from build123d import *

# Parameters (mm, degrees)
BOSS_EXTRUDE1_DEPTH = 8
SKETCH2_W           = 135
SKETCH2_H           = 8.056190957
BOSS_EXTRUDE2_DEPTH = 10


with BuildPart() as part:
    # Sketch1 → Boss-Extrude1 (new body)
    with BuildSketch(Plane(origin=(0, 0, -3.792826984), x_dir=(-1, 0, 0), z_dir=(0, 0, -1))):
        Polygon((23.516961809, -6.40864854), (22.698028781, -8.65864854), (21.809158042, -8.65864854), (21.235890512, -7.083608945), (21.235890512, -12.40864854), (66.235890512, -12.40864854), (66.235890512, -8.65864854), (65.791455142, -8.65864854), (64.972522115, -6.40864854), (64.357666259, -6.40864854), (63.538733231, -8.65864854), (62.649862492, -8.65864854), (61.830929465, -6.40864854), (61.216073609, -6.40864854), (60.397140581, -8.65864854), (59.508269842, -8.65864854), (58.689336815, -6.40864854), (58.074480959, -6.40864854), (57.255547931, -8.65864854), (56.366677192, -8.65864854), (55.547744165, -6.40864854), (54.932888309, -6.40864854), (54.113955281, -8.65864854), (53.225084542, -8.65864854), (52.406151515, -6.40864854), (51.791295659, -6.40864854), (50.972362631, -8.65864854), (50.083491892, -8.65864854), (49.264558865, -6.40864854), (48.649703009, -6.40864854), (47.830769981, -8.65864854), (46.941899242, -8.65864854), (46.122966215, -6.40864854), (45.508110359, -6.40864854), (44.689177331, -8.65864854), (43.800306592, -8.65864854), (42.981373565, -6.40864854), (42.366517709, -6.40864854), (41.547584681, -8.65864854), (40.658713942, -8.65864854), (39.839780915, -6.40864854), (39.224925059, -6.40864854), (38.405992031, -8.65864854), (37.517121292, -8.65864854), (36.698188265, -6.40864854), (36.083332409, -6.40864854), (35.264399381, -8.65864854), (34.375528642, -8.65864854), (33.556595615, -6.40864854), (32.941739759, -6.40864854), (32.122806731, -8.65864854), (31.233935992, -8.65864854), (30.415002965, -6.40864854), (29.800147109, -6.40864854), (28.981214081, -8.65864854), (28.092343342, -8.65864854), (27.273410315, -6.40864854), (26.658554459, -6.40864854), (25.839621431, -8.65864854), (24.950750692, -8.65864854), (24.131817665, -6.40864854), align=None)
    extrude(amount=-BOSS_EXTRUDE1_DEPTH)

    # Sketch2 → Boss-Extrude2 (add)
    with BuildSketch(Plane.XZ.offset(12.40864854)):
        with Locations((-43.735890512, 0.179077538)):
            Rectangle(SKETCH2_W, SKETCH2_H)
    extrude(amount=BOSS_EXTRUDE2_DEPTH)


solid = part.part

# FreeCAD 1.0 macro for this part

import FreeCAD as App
import Part
import Sketcher

V = App.Vector
Q = App.Units.Quantity


def add_polygon(sketch, points):
    """Adds a closed chain of lines whose ends are joined by coincident constraints."""
    first, n = sketch.GeometryCount, len(points)
    for a, b in zip(points, points[1:] + points[:1]):
        sketch.addGeometry(Part.LineSegment(App.Vector(*a, 0), App.Vector(*b, 0)), False)
    for i in range(n):
        sketch.addConstraint(Sketcher.Constraint("Coincident", first + i, 2, first + (i + 1) % n, 1))

doc = App.newDocument("Part")
body = doc.addObject("PartDesign::Body", "Body")

sketch1 = body.newObject("Sketcher::SketchObject", "Sketch")
sketch1.AttachmentSupport = (doc.getObject("XY_Plane"), [""])
sketch1.MapMode = "FlatFace"
sketch1.AttachmentOffset = App.Placement(V(0, 0, -3.792827), App.Rotation())
add_polygon(sketch1, [(-23.52, -6.41), (-22.7, -8.66), (-21.81, -8.66), (-21.24, -7.08), (-21.24, -12.41), (-66.24, -12.41), (-66.24, -8.66), (-65.79, -8.66), (-64.97, -6.41), (-64.36, -6.41), (-63.54, -8.66), (-62.65, -8.66), (-61.83, -6.41), (-61.22, -6.41), (-60.4, -8.66), (-59.51, -8.66), (-58.69, -6.41), (-58.07, -6.41), (-57.26, -8.66), (-56.37, -8.66), (-55.55, -6.41), (-54.93, -6.41), (-54.11, -8.66), (-53.23, -8.66), (-52.41, -6.41), (-51.79, -6.41), (-50.97, -8.66), (-50.08, -8.66), (-49.26, -6.41), (-48.65, -6.41), (-47.83, -8.66), (-46.94, -8.66), (-46.12, -6.41), (-45.51, -6.41), (-44.69, -8.66), (-43.8, -8.66), (-42.98, -6.41), (-42.37, -6.41), (-41.55, -8.66), (-40.66, -8.66), (-39.84, -6.41), (-39.22, -6.41), (-38.41, -8.66), (-37.52, -8.66), (-36.7, -6.41), (-36.08, -6.41), (-35.26, -8.66), (-34.38, -8.66), (-33.56, -6.41), (-32.94, -6.41), (-32.12, -8.66), (-31.23, -8.66), (-30.42, -6.41), (-29.8, -6.41), (-28.98, -8.66), (-28.09, -8.66), (-27.27, -6.41), (-26.66, -6.41), (-25.84, -8.66), (-24.95, -8.66), (-24.13, -6.41)])
sketch1.addConstraint(Sketcher.Constraint("Horizontal", 1))
sketch1.addConstraint(Sketcher.Constraint("Vertical", 3))
sketch1.addConstraint(Sketcher.Constraint("Horizontal", 4))
sketch1.addConstraint(Sketcher.Constraint("Vertical", 5))
sketch1.addConstraint(Sketcher.Constraint("Horizontal", 6))
sketch1.addConstraint(Sketcher.Constraint("Horizontal", 8))
sketch1.addConstraint(Sketcher.Constraint("Horizontal", 10))
sketch1.addConstraint(Sketcher.Constraint("Horizontal", 12))
sketch1.addConstraint(Sketcher.Constraint("Horizontal", 14))
sketch1.addConstraint(Sketcher.Constraint("Horizontal", 16))
sketch1.addConstraint(Sketcher.Constraint("Horizontal", 18))
sketch1.addConstraint(Sketcher.Constraint("Horizontal", 20))
sketch1.addConstraint(Sketcher.Constraint("Horizontal", 22))
sketch1.addConstraint(Sketcher.Constraint("Horizontal", 24))
sketch1.addConstraint(Sketcher.Constraint("Horizontal", 26))
sketch1.addConstraint(Sketcher.Constraint("Horizontal", 28))
sketch1.addConstraint(Sketcher.Constraint("Horizontal", 30))
sketch1.addConstraint(Sketcher.Constraint("Horizontal", 32))
sketch1.addConstraint(Sketcher.Constraint("Horizontal", 34))
sketch1.addConstraint(Sketcher.Constraint("Horizontal", 36))
sketch1.addConstraint(Sketcher.Constraint("Horizontal", 38))
sketch1.addConstraint(Sketcher.Constraint("Horizontal", 40))
sketch1.addConstraint(Sketcher.Constraint("Horizontal", 42))
sketch1.addConstraint(Sketcher.Constraint("Horizontal", 44))
sketch1.addConstraint(Sketcher.Constraint("Horizontal", 46))
sketch1.addConstraint(Sketcher.Constraint("Horizontal", 48))
sketch1.addConstraint(Sketcher.Constraint("Horizontal", 50))
sketch1.addConstraint(Sketcher.Constraint("Horizontal", 52))
sketch1.addConstraint(Sketcher.Constraint("Horizontal", 54))
sketch1.addConstraint(Sketcher.Constraint("Horizontal", 56))
sketch1.addConstraint(Sketcher.Constraint("Horizontal", 58))
sketch1.addConstraint(Sketcher.Constraint("Horizontal", 60))
sketch1.addConstraint(Sketcher.Constraint("Parallel", 2, 7))
sketch1.addConstraint(Sketcher.Constraint("Parallel", 0, 9))
sketch1.addConstraint(Sketcher.Constraint("Parallel", 7, 11))
sketch1.addConstraint(Sketcher.Constraint("Parallel", 9, 13))
sketch1.addConstraint(Sketcher.Constraint("Parallel", 11, 15))
sketch1.addConstraint(Sketcher.Constraint("Parallel", 13, 17))
sketch1.addConstraint(Sketcher.Constraint("Parallel", 15, 19))
sketch1.addConstraint(Sketcher.Constraint("Parallel", 17, 21))
sketch1.addConstraint(Sketcher.Constraint("Parallel", 19, 23))
sketch1.addConstraint(Sketcher.Constraint("Parallel", 21, 25))
sketch1.addConstraint(Sketcher.Constraint("Parallel", 23, 27))
sketch1.addConstraint(Sketcher.Constraint("Parallel", 25, 29))
sketch1.addConstraint(Sketcher.Constraint("Parallel", 27, 31))
sketch1.addConstraint(Sketcher.Constraint("Parallel", 29, 33))
sketch1.addConstraint(Sketcher.Constraint("Parallel", 31, 35))
sketch1.addConstraint(Sketcher.Constraint("Parallel", 33, 37))
sketch1.addConstraint(Sketcher.Constraint("Parallel", 35, 39))
sketch1.addConstraint(Sketcher.Constraint("Parallel", 37, 41))
sketch1.addConstraint(Sketcher.Constraint("Parallel", 39, 43))
sketch1.addConstraint(Sketcher.Constraint("Parallel", 41, 45))
sketch1.addConstraint(Sketcher.Constraint("Parallel", 43, 47))
sketch1.addConstraint(Sketcher.Constraint("Parallel", 45, 49))
sketch1.addConstraint(Sketcher.Constraint("Parallel", 47, 51))
sketch1.addConstraint(Sketcher.Constraint("Parallel", 49, 53))
sketch1.addConstraint(Sketcher.Constraint("Parallel", 51, 55))
sketch1.addConstraint(Sketcher.Constraint("Parallel", 53, 57))
sketch1.addConstraint(Sketcher.Constraint("Parallel", 55, 59))
sketch1.addConstraint(Sketcher.Constraint("Horizontal", 1, 2, 5, 2))
sketch1.addConstraint(Sketcher.Constraint("Horizontal", 6, 2, 9, 2))
sketch1.addConstraint(Sketcher.Constraint("Horizontal", 8, 2, 11, 2))
sketch1.addConstraint(Sketcher.Constraint("Horizontal", 10, 2, 13, 2))
sketch1.addConstraint(Sketcher.Constraint("Horizontal", 12, 2, 15, 2))
sketch1.addConstraint(Sketcher.Constraint("Horizontal", 14, 2, 17, 2))
sketch1.addConstraint(Sketcher.Constraint("Horizontal", 16, 2, 19, 2))
sketch1.addConstraint(Sketcher.Constraint("Horizontal", 18, 2, 21, 2))
sketch1.addConstraint(Sketcher.Constraint("Horizontal", 20, 2, 23, 2))
sketch1.addConstraint(Sketcher.Constraint("Horizontal", 22, 2, 25, 2))
sketch1.addConstraint(Sketcher.Constraint("Horizontal", 24, 2, 27, 2))
sketch1.addConstraint(Sketcher.Constraint("Horizontal", 26, 2, 29, 2))
sketch1.addConstraint(Sketcher.Constraint("Horizontal", 28, 2, 31, 2))
sketch1.addConstraint(Sketcher.Constraint("Horizontal", 30, 2, 33, 2))
sketch1.addConstraint(Sketcher.Constraint("Horizontal", 32, 2, 35, 2))
sketch1.addConstraint(Sketcher.Constraint("Horizontal", 34, 2, 37, 2))
sketch1.addConstraint(Sketcher.Constraint("Horizontal", 36, 2, 39, 2))
sketch1.addConstraint(Sketcher.Constraint("Horizontal", 38, 2, 41, 2))
sketch1.addConstraint(Sketcher.Constraint("Horizontal", 40, 2, 43, 2))
sketch1.addConstraint(Sketcher.Constraint("Horizontal", 42, 2, 45, 2))
sketch1.addConstraint(Sketcher.Constraint("Horizontal", 44, 2, 47, 2))
sketch1.addConstraint(Sketcher.Constraint("Horizontal", 46, 2, 49, 2))
sketch1.addConstraint(Sketcher.Constraint("Horizontal", 48, 2, 51, 2))
sketch1.addConstraint(Sketcher.Constraint("Horizontal", 50, 2, 53, 2))
sketch1.addConstraint(Sketcher.Constraint("Horizontal", 52, 2, 55, 2))
sketch1.addConstraint(Sketcher.Constraint("Horizontal", 54, 2, 57, 2))
sketch1.addConstraint(Sketcher.Constraint("Horizontal", 56, 2, 59, 2))
sketch1.addConstraint(Sketcher.Constraint("Equal", 1, 10))
sketch1.addConstraint(Sketcher.Constraint("Equal", 8, 12))
sketch1.addConstraint(Sketcher.Constraint("Equal", 10, 14))
sketch1.addConstraint(Sketcher.Constraint("Equal", 12, 16))
sketch1.addConstraint(Sketcher.Constraint("Equal", 14, 18))
sketch1.addConstraint(Sketcher.Constraint("Equal", 16, 20))
sketch1.addConstraint(Sketcher.Constraint("Equal", 18, 22))
sketch1.addConstraint(Sketcher.Constraint("Equal", 20, 24))
sketch1.addConstraint(Sketcher.Constraint("Equal", 22, 26))
sketch1.addConstraint(Sketcher.Constraint("Equal", 24, 28))
sketch1.addConstraint(Sketcher.Constraint("Equal", 26, 30))
sketch1.addConstraint(Sketcher.Constraint("Equal", 28, 32))
sketch1.addConstraint(Sketcher.Constraint("Equal", 30, 34))
sketch1.addConstraint(Sketcher.Constraint("Equal", 32, 36))
sketch1.addConstraint(Sketcher.Constraint("Equal", 34, 38))
sketch1.addConstraint(Sketcher.Constraint("Equal", 36, 40))
sketch1.addConstraint(Sketcher.Constraint("Equal", 38, 42))
sketch1.addConstraint(Sketcher.Constraint("Equal", 40, 44))
sketch1.addConstraint(Sketcher.Constraint("Equal", 42, 46))
sketch1.addConstraint(Sketcher.Constraint("Equal", 44, 48))
sketch1.addConstraint(Sketcher.Constraint("Equal", 46, 50))
sketch1.addConstraint(Sketcher.Constraint("Equal", 48, 52))
sketch1.addConstraint(Sketcher.Constraint("Equal", 50, 54))
sketch1.addConstraint(Sketcher.Constraint("Equal", 52, 56))
sketch1.addConstraint(Sketcher.Constraint("Equal", 54, 58))
sketch1.addConstraint(Sketcher.Constraint("Equal", 56, 60))
sketch1.addConstraint(Sketcher.Constraint("Equal", 0, 7))
sketch1.addConstraint(Sketcher.Constraint("DistanceX", 4, 2, 4, 1, Q("45 mm")))
sketch1.addConstraint(Sketcher.Constraint("Angle", 0, Q("-70 deg")))
sketch1.addConstraint(Sketcher.Constraint("DistanceY", 5, 1, 5, 2, Q("3.75 mm")))
sketch1.addConstraint(Sketcher.Constraint("Distance", 0, Q("2.3944 mm")))
sketch1.addConstraint(Sketcher.Constraint("DistanceX", 1, 1, 1, 2, Q("0.888871 mm")))
sketch1.addConstraint(Sketcher.Constraint("DistanceY", 3, 2, 3, 1, Q("5.32504 mm")))
sketch1.addConstraint(Sketcher.Constraint("DistanceX", 30, 2, -1, 1, Q("46.941899 mm")))
sketch1.addConstraint(Sketcher.Constraint("DistanceX", 45, 2, -1, 1, Q("35.264399 mm")))
sketch1.addConstraint(Sketcher.Constraint("DistanceY", 0, 2, -1, 1, Q("8.658649 mm")))
pad1 = body.newObject("PartDesign::Pad", "Pad")
pad1.Profile = sketch1
pad1.Length = 8

sketch2 = body.newObject("Sketcher::SketchObject", "Sketch001")
sketch2.AttachmentSupport = (doc.getObject("XZ_Plane"), [""])
sketch2.MapMode = "FlatFace"
sketch2.AttachmentOffset = App.Placement(V(0, 0, 12.408649), App.Rotation())
add_polygon(sketch2, [(-111, 4), (-111, -4), (24, -4), (24, 4)])
sketch2.addConstraint(Sketcher.Constraint("Vertical", 0))
sketch2.addConstraint(Sketcher.Constraint("Horizontal", 1))
sketch2.addConstraint(Sketcher.Constraint("Vertical", 2))
sketch2.addConstraint(Sketcher.Constraint("Horizontal", 3))
sketch2.addConstraint(Sketcher.Constraint("DistanceX", 1, 1, 1, 2, Q("135 mm")))
sketch2.addConstraint(Sketcher.Constraint("DistanceY", 0, 2, 0, 1, Q("8.056191 mm")))
sketch2.addConstraint(Sketcher.Constraint("DistanceX", 0, 2, -1, 1, Q("111.235891 mm")))
sketch2.addConstraint(Sketcher.Constraint("DistanceY", 0, 2, -1, 1, Q("3.849018 mm")))
pad2 = body.newObject("PartDesign::Pad", "Pad001")
pad2.Profile = sketch2
pad2.Length = 10

doc.recompute()
